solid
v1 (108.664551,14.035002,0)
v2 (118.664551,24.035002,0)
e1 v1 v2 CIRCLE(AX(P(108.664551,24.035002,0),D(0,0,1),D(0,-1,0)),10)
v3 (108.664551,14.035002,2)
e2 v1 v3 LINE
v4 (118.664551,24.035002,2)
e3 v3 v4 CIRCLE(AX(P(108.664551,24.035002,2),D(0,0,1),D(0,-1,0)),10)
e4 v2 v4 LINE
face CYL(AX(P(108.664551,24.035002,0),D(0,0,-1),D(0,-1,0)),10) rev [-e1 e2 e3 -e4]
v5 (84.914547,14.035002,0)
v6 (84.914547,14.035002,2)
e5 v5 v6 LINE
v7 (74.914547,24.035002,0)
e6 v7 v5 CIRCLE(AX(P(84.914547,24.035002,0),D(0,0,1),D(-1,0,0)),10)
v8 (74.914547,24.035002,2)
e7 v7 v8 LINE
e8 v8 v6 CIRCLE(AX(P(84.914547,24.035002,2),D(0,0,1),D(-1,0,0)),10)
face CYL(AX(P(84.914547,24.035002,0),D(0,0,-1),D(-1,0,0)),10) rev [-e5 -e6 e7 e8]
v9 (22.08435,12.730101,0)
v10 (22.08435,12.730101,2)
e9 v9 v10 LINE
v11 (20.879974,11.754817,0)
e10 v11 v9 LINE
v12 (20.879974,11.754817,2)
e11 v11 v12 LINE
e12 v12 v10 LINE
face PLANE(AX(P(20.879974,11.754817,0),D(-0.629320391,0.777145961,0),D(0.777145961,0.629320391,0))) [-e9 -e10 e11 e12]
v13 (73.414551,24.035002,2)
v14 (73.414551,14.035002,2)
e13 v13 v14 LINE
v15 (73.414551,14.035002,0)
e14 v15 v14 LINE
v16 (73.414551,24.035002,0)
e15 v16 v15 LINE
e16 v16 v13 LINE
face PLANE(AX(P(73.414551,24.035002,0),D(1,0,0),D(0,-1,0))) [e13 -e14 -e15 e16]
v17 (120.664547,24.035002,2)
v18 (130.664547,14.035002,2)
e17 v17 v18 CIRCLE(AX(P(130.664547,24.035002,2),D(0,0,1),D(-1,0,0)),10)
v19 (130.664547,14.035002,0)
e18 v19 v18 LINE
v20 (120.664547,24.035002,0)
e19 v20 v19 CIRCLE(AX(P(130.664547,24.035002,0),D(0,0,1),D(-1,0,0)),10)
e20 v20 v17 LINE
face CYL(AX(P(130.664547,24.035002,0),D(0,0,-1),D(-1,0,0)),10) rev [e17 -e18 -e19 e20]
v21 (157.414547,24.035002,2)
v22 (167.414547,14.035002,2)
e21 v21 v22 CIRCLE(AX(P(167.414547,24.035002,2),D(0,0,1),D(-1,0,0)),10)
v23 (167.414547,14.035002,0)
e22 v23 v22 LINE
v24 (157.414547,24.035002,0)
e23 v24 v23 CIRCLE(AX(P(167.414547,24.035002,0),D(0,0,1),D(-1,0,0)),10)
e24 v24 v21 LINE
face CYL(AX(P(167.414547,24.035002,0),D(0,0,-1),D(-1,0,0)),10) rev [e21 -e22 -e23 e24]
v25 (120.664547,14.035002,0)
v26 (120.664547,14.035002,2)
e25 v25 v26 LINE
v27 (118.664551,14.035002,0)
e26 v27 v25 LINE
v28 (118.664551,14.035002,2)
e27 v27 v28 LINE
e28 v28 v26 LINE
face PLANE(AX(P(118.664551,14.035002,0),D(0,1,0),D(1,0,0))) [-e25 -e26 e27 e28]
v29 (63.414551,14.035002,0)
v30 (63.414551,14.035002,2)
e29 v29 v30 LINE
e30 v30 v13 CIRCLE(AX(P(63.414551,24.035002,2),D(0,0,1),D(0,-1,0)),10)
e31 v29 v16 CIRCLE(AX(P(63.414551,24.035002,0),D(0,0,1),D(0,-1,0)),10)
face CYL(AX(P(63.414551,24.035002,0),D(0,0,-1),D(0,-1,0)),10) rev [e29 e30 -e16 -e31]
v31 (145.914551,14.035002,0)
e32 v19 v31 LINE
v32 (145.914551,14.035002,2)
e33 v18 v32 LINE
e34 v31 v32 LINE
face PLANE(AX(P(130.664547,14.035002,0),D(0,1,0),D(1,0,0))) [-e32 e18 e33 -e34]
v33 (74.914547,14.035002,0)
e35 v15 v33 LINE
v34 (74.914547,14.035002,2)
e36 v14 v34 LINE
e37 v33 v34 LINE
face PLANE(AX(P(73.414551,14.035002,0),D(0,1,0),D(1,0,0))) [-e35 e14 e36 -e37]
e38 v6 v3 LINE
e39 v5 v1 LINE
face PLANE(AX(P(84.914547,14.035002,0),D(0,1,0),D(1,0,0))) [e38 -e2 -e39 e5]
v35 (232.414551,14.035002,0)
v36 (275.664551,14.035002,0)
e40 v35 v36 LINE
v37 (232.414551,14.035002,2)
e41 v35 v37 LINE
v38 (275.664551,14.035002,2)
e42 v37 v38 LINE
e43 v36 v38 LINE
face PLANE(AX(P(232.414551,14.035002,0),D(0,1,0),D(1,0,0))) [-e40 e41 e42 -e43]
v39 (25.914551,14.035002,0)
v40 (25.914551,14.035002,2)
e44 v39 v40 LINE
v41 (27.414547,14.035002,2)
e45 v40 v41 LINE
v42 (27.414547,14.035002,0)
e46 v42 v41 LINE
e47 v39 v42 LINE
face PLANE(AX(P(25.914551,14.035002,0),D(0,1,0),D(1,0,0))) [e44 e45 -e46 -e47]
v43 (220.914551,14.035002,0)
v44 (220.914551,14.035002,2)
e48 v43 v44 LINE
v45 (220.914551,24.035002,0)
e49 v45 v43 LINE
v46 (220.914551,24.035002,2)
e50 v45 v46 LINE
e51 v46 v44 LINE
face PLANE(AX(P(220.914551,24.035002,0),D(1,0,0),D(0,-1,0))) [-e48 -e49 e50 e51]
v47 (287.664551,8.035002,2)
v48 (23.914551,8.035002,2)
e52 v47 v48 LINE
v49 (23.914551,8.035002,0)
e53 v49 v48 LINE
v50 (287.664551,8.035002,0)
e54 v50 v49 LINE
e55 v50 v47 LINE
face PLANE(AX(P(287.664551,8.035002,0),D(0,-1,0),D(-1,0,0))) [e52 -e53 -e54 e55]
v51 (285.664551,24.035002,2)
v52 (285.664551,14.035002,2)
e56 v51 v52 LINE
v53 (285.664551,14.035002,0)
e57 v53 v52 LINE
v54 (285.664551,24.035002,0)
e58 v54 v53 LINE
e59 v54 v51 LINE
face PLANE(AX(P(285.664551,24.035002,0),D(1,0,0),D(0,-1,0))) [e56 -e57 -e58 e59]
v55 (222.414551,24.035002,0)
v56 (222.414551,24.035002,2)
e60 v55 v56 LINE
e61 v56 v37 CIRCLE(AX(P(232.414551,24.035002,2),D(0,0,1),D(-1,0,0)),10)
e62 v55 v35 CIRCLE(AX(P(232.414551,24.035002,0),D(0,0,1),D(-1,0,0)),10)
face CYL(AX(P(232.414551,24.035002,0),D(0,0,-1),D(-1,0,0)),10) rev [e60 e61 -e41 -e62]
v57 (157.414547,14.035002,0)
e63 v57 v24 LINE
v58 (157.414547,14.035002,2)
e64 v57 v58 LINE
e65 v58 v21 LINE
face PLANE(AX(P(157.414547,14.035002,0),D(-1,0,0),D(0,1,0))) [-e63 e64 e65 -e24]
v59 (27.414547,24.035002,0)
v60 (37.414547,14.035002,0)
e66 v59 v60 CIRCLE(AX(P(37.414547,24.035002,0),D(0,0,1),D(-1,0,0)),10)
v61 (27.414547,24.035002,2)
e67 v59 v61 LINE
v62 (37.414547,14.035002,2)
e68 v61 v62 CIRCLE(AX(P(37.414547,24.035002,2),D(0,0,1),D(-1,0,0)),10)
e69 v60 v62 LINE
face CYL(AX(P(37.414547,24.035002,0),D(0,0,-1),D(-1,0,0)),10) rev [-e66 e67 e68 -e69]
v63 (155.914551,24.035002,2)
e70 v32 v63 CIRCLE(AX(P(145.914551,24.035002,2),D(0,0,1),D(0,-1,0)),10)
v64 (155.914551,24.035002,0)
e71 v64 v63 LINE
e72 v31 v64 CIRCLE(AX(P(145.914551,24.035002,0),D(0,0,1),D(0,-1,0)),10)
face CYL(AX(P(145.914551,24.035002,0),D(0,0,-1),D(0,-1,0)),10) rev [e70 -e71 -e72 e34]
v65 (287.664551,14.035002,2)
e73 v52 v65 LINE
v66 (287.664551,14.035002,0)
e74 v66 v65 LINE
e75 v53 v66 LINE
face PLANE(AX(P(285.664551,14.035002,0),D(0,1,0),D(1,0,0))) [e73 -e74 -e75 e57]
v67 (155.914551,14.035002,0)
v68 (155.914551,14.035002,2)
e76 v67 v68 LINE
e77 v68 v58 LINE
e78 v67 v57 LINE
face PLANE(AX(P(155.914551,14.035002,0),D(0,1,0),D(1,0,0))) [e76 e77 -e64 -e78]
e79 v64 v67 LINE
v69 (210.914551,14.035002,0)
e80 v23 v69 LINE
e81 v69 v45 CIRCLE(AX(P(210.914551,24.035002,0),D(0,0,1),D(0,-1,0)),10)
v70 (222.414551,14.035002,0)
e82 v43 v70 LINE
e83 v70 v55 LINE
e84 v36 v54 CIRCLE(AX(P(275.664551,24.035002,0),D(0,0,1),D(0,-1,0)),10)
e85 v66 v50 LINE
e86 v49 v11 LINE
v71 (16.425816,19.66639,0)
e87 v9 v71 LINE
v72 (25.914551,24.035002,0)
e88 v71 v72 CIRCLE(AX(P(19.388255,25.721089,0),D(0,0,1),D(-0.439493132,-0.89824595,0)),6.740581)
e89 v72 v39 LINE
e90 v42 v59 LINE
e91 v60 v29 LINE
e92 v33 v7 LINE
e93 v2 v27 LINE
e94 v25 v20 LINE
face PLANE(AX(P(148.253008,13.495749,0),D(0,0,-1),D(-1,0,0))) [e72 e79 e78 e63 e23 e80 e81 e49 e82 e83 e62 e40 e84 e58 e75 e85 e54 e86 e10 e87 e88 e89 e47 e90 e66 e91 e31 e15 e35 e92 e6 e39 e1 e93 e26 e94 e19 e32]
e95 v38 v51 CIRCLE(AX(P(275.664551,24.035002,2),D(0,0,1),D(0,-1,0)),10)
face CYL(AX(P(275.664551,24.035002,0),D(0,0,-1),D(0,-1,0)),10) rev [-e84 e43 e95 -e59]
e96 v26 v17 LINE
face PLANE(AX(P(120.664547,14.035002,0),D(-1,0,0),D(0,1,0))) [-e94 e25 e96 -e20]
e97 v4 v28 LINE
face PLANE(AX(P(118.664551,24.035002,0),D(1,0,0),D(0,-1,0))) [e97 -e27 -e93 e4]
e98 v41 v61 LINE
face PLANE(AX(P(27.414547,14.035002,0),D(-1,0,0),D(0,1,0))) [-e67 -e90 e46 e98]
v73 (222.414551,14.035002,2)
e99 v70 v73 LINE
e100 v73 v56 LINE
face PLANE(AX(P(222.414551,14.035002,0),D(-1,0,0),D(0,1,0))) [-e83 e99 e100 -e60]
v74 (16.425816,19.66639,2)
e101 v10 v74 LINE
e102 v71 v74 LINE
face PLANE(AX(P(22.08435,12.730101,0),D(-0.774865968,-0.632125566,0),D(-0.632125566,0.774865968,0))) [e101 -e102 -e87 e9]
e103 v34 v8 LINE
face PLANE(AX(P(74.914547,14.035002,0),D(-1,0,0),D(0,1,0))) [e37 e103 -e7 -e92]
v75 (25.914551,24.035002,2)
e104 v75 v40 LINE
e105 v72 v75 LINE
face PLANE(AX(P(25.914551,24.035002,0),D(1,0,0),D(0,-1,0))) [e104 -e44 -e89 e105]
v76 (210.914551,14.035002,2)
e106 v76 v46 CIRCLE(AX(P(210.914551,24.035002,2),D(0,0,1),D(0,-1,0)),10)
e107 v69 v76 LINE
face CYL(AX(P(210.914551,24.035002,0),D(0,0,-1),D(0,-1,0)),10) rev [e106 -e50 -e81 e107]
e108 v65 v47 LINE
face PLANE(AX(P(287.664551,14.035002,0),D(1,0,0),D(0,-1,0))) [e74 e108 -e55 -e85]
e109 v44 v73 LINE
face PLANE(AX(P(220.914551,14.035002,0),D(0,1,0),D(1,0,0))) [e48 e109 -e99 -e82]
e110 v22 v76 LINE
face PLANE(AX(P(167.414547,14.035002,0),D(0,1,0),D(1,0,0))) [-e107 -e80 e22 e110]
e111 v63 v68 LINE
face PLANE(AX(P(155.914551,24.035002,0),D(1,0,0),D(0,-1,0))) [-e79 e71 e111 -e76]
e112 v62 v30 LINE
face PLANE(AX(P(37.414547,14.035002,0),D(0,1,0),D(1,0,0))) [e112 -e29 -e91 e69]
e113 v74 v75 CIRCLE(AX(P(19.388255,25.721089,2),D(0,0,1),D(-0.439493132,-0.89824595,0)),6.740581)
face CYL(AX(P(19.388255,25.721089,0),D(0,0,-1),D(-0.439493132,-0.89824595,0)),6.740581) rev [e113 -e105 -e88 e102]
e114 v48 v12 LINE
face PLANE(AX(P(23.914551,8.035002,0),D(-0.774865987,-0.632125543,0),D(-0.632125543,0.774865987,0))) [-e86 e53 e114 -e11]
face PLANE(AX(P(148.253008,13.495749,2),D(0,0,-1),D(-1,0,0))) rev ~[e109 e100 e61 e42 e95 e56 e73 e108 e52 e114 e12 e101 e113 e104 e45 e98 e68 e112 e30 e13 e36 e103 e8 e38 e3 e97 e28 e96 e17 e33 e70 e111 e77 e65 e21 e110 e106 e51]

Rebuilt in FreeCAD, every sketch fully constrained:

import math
import FreeCAD as App
import Part
import Sketcher

V = App.Vector
Q = App.Units.Quantity

doc = App.newDocument("Part")
params = doc.addObject("Spreadsheet::Sheet", "Params")
for row, (alias, value) in enumerate([
    ("sketch1_radius", "10 mm"),
    ("sketch1_width", "2 mm"),
    ("sketch1_height", "6 mm"),
    ("sketch1_width2", "1.5 mm"),
    ("sketch1_width3", "263.75 mm"),
    ("pad1_length", "2 mm"),
], start=1):
    params.set(f"A{row}", alias)
    params.set(f"B{row}", "=" + value)
    params.setAlias(f"B{row}", alias)

body = doc.addObject("PartDesign::Body", "Body")

# Sketch on XY plane
sketch1 = body.newObject("Sketcher::SketchObject", "Sketch")
sketch1.AttachmentSupport = (doc.getObject("XY_Plane"), [""])
sketch1.MapMode = "FlatFace"
sketch1.addGeometry(Part.LineSegment(V(23.9, 8, 0), V(287.7, 8, 0)), False)
sketch1.addGeometry(Part.LineSegment(V(287.7, 8, 0), V(287.7, 14, 0)), False)
sketch1.addGeometry(Part.LineSegment(V(287.7, 14, 0), V(285.7, 14, 0)), False)
sketch1.addGeometry(Part.LineSegment(V(285.7, 14, 0), V(285.7, 24, 0)), False)
sketch1.addGeometry(Part.ArcOfCircle(Part.Circle(V(275.7, 24, 0), V(0, 0, 1), 10), math.radians(-90), math.radians(0)), False)
sketch1.addGeometry(Part.LineSegment(V(275.7, 14, 0), V(232.4, 14, 0)), False)
sketch1.addGeometry(Part.ArcOfCircle(Part.Circle(V(232.4, 24, 0), V(0, 0, 1), 10), math.radians(180), math.radians(270)), False)
sketch1.addGeometry(Part.LineSegment(V(222.4, 24, 0), V(222.4, 14, 0)), False)
sketch1.addGeometry(Part.LineSegment(V(222.4, 14, 0), V(220.9, 14, 0)), False)
sketch1.addGeometry(Part.LineSegment(V(220.9, 14, 0), V(220.9, 24, 0)), False)
sketch1.addGeometry(Part.ArcOfCircle(Part.Circle(V(210.9, 24, 0), V(0, 0, 1), 10), math.radians(-90), math.radians(0)), False)
sketch1.addGeometry(Part.LineSegment(V(210.9, 14, 0), V(167.4, 14, 0)), False)
sketch1.addGeometry(Part.ArcOfCircle(Part.Circle(V(167.4, 24, 0), V(0, 0, 1), 10), math.radians(-180), math.radians(-90)), False)
sketch1.addGeometry(Part.LineSegment(V(157.4, 24, 0), V(157.4, 14, 0)), False)
sketch1.addGeometry(Part.LineSegment(V(157.4, 14, 0), V(155.9, 14, 0)), False)
sketch1.addGeometry(Part.LineSegment(V(155.9, 14, 0), V(155.9, 24, 0)), False)
sketch1.addGeometry(Part.ArcOfCircle(Part.Circle(V(145.9, 24, 0), V(0, 0, 1), 10), math.radians(-90), math.radians(0)), False)
sketch1.addGeometry(Part.LineSegment(V(145.9, 14, 0), V(130.7, 14, 0)), False)
sketch1.addGeometry(Part.ArcOfCircle(Part.Circle(V(130.7, 24, 0), V(0, 0, 1), 10), math.radians(-180), math.radians(-90)), False)
sketch1.addGeometry(Part.LineSegment(V(120.7, 24, 0), V(120.7, 14, 0)), False)
sketch1.addGeometry(Part.LineSegment(V(120.7, 14, 0), V(118.7, 14, 0)), False)
sketch1.addGeometry(Part.LineSegment(V(118.7, 14, 0), V(118.7, 24, 0)), False)
sketch1.addGeometry(Part.ArcOfCircle(Part.Circle(V(108.7, 24, 0), V(0, 0, 1), 10), math.radians(-90), math.radians(0)), False)
sketch1.addGeometry(Part.LineSegment(V(108.7, 14, 0), V(84.9, 14, 0)), False)
sketch1.addGeometry(Part.ArcOfCircle(Part.Circle(V(84.9, 24, 0), V(0, 0, 1), 10), math.radians(-180), math.radians(-90)), False)
sketch1.addGeometry(Part.LineSegment(V(74.9, 24, 0), V(74.9, 14, 0)), False)
sketch1.addGeometry(Part.LineSegment(V(74.9, 14, 0), V(73.4, 14, 0)), False)
sketch1.addGeometry(Part.LineSegment(V(73.4, 14, 0), V(73.4, 24, 0)), False)
sketch1.addGeometry(Part.ArcOfCircle(Part.Circle(V(63.4, 24, 0), V(0, 0, 1), 10), math.radians(-90), math.radians(0)), False)
sketch1.addGeometry(Part.LineSegment(V(63.4, 14, 0), V(37.4, 14, 0)), False)
sketch1.addGeometry(Part.ArcOfCircle(Part.Circle(V(37.4, 24, 0), V(0, 0, 1), 10), math.radians(-180), math.radians(-90)), False)
sketch1.addGeometry(Part.LineSegment(V(27.4, 24, 0), V(27.4, 14, 0)), False)
sketch1.addGeometry(Part.LineSegment(V(27.4, 14, 0), V(25.9, 14, 0)), False)
sketch1.addGeometry(Part.LineSegment(V(25.9, 14, 0), V(25.9, 24, 0)), False)
sketch1.addGeometry(Part.ArcOfCircle(Part.Circle(V(19.4, 25.7, 0), V(0, 0, 1), 6.7), math.radians(-116), math.radians(-14)), False)
sketch1.addGeometry(Part.LineSegment(V(16.4, 19.7, 0), V(22.1, 12.7, 0)), False)
sketch1.addGeometry(Part.LineSegment(V(22.1, 12.7, 0), V(20.9, 11.8, 0)), False)
sketch1.addGeometry(Part.LineSegment(V(20.9, 11.8, 0), V(23.9, 8, 0)), False)
sketch1.addConstraint(Sketcher.Constraint("Coincident", 0, 2, 1, 1))
sketch1.addConstraint(Sketcher.Constraint("Coincident", 1, 2, 2, 1))
sketch1.addConstraint(Sketcher.Constraint("Coincident", 2, 2, 3, 1))
sketch1.addConstraint(Sketcher.Constraint("Tangent", 3, 2, 4, 2))
sketch1.addConstraint(Sketcher.Constraint("Tangent", 4, 1, 5, 1))
sketch1.addConstraint(Sketcher.Constraint("Tangent", 5, 2, 6, 2))
sketch1.addConstraint(Sketcher.Constraint("Tangent", 6, 1, 7, 1))
sketch1.addConstraint(Sketcher.Constraint("Coincident", 7, 2, 8, 1))
sketch1.addConstraint(Sketcher.Constraint("Coincident", 8, 2, 9, 1))
sketch1.addConstraint(Sketcher.Constraint("Tangent", 9, 2, 10, 2))
sketch1.addConstraint(Sketcher.Constraint("Tangent", 10, 1, 11, 1))
sketch1.addConstraint(Sketcher.Constraint("Tangent", 11, 2, 12, 2))
sketch1.addConstraint(Sketcher.Constraint("Tangent", 12, 1, 13, 1))
sketch1.addConstraint(Sketcher.Constraint("Coincident", 13, 2, 14, 1))
sketch1.addConstraint(Sketcher.Constraint("Coincident", 14, 2, 15, 1))
sketch1.addConstraint(Sketcher.Constraint("Tangent", 15, 2, 16, 2))
sketch1.addConstraint(Sketcher.Constraint("Tangent", 16, 1, 17, 1))
sketch1.addConstraint(Sketcher.Constraint("Tangent", 17, 2, 18, 2))
sketch1.addConstraint(Sketcher.Constraint("Tangent", 18, 1, 19, 1))
sketch1.addConstraint(Sketcher.Constraint("Coincident", 19, 2, 20, 1))
sketch1.addConstraint(Sketcher.Constraint("Coincident", 20, 2, 21, 1))
sketch1.addConstraint(Sketcher.Constraint("Tangent", 21, 2, 22, 2))
sketch1.addConstraint(Sketcher.Constraint("Tangent", 22, 1, 23, 1))
sketch1.addConstraint(Sketcher.Constraint("Tangent", 23, 2, 24, 2))
sketch1.addConstraint(Sketcher.Constraint("Tangent", 24, 1, 25, 1))
sketch1.addConstraint(Sketcher.Constraint("Coincident", 25, 2, 26, 1))
sketch1.addConstraint(Sketcher.Constraint("Coincident", 26, 2, 27, 1))
sketch1.addConstraint(Sketcher.Constraint("Tangent", 27, 2, 28, 2))
sketch1.addConstraint(Sketcher.Constraint("Tangent", 28, 1, 29, 1))
sketch1.addConstraint(Sketcher.Constraint("Tangent", 29, 2, 30, 2))
sketch1.addConstraint(Sketcher.Constraint("Tangent", 30, 1, 31, 1))
sketch1.addConstraint(Sketcher.Constraint("Coincident", 31, 2, 32, 1))
sketch1.addConstraint(Sketcher.Constraint("Coincident", 32, 2, 33, 1))
sketch1.addConstraint(Sketcher.Constraint("Coincident", 33, 2, 34, 2))
sketch1.addConstraint(Sketcher.Constraint("Coincident", 34, 1, 35, 1))
sketch1.addConstraint(Sketcher.Constraint("Coincident", 35, 2, 36, 1))
sketch1.addConstraint(Sketcher.Constraint("Coincident", 36, 2, 37, 1))
sketch1.addConstraint(Sketcher.Constraint("Coincident", 37, 2, 0, 1))
sketch1.addConstraint(Sketcher.Constraint("Horizontal", 0))
sketch1.addConstraint(Sketcher.Constraint("Vertical", 1))
sketch1.addConstraint(Sketcher.Constraint("Horizontal", 2))
sketch1.addConstraint(Sketcher.Constraint("Vertical", 3))
sketch1.addConstraint(Sketcher.Constraint("Horizontal", 5))
sketch1.addConstraint(Sketcher.Constraint("Vertical", 7))
sketch1.addConstraint(Sketcher.Constraint("Horizontal", 8))
sketch1.addConstraint(Sketcher.Constraint("Vertical", 9))
sketch1.addConstraint(Sketcher.Constraint("Horizontal", 11))
sketch1.addConstraint(Sketcher.Constraint("Vertical", 13))
sketch1.addConstraint(Sketcher.Constraint("Horizontal", 14))
sketch1.addConstraint(Sketcher.Constraint("Vertical", 15))
sketch1.addConstraint(Sketcher.Constraint("Horizontal", 17))
sketch1.addConstraint(Sketcher.Constraint("Vertical", 19))
sketch1.addConstraint(Sketcher.Constraint("Horizontal", 20))
sketch1.addConstraint(Sketcher.Constraint("Vertical", 21))
sketch1.addConstraint(Sketcher.Constraint("Horizontal", 23))
sketch1.addConstraint(Sketcher.Constraint("Vertical", 25))
sketch1.addConstraint(Sketcher.Constraint("Horizontal", 26))
sketch1.addConstraint(Sketcher.Constraint("Vertical", 27))
sketch1.addConstraint(Sketcher.Constraint("Horizontal", 29))
sketch1.addConstraint(Sketcher.Constraint("Vertical", 31))
sketch1.addConstraint(Sketcher.Constraint("Horizontal", 32))
sketch1.addConstraint(Sketcher.Constraint("Vertical", 33))
sketch1.addConstraint(Sketcher.Constraint("Equal", 4, 6))
sketch1.addConstraint(Sketcher.Constraint("Equal", 6, 10))
sketch1.addConstraint(Sketcher.Constraint("Equal", 10, 12))
sketch1.addConstraint(Sketcher.Constraint("Equal", 12, 16))
sketch1.addConstraint(Sketcher.Constraint("Equal", 16, 18))
sketch1.addConstraint(Sketcher.Constraint("Equal", 18, 22))
sketch1.addConstraint(Sketcher.Constraint("Equal", 22, 24))
sketch1.addConstraint(Sketcher.Constraint("Equal", 24, 28))
sketch1.addConstraint(Sketcher.Constraint("Equal", 28, 30))
sketch1.addConstraint(Sketcher.Constraint("Parallel", 35, 37))
sketch1.addConstraint(Sketcher.Constraint("Horizontal", 6, 3, 10, 3))
sketch1.addConstraint(Sketcher.Constraint("Horizontal", 12, 3, 16, 3))
sketch1.addConstraint(Sketcher.Constraint("Horizontal", 18, 3, 22, 3))
sketch1.addConstraint(Sketcher.Constraint("Horizontal", 24, 3, 28, 3))
sketch1.addConstraint(Sketcher.Constraint("Horizontal", 2, 2, 4, 1))
sketch1.addConstraint(Sketcher.Constraint("Horizontal", 5, 2, 7, 2))
sketch1.addConstraint(Sketcher.Constraint("Horizontal", 11, 2, 13, 2))
sketch1.addConstraint(Sketcher.Constraint("Horizontal", 17, 2, 19, 2))
sketch1.addConstraint(Sketcher.Constraint("Horizontal", 23, 2, 25, 2))
sketch1.addConstraint(Sketcher.Constraint("Horizontal", 29, 2, 31, 2))
sketch1.addConstraint(Sketcher.Constraint("Horizontal", 30, 1, 33, 2))
sketch1.addConstraint(Sketcher.Constraint("Equal", 14, 26))
sketch1.addConstraint(Sketcher.Constraint("Equal", 26, 32))
sketch1.addConstraint(Sketcher.Constraint("Radius", 4, Q("10 mm")))
sketch1.addConstraint(Sketcher.Constraint("DistanceX", 2, 2, 2, 1, Q("2 mm")))
sketch1.addConstraint(Sketcher.Constraint("DistanceY", 1, 1, 1, 2, Q("6 mm")))
sketch1.addConstraint(Sketcher.Constraint("Angle", 36, Q("-141 deg")))
sketch1.addConstraint(Sketcher.Constraint("DistanceX", 8, 2, 8, 1, Q("1.5 mm")))
sketch1.addConstraint(Sketcher.Constraint("DistanceX", 16, 3, 10, 3, Q("65 mm")))
sketch1.addConstraint(Sketcher.Constraint("DistanceX", 37, 2, 32, 2, Q("2 mm")))
sketch1.addConstraint(Sketcher.Constraint("DistanceX", 0, 1, 0, 2, Q("263.75 mm")))
sketch1.addConstraint(Sketcher.Constraint("DistanceX", 5, 2, 5, 1, Q("43.25 mm")))
sketch1.addConstraint(Sketcher.Constraint("DistanceX", 24, 3, 12, 3, Q("82.5 mm")))
sketch1.addConstraint(Sketcher.Constraint("Radius", 34, Q("6.740581 mm")))
sketch1.addConstraint(Sketcher.Constraint("DistanceX", 18, 3, 12, 3, Q("36.75 mm")))
sketch1.addConstraint(Sketcher.Constraint("DistanceX", 22, 3, 16, 3, Q("37.25 mm")))
sketch1.addConstraint(Sketcher.Constraint("DistanceY", -1, 1, 4, 3, Q("24.035002 mm")))
sketch1.addConstraint(Sketcher.Constraint("Distance", 35, Q("8.951598 mm")))
sketch1.addConstraint(Sketcher.Constraint("DistanceY", -1, 1, 35, 2, Q("12.730101 mm")))
sketch1.addConstraint(Sketcher.Constraint("DistanceY", 34, 1, 34, 3, Q("6.054699 mm")))
sketch1.addConstraint(Sketcher.Constraint("DistanceX", 35, 2, 32, 2, Q("3.830201 mm")))
sketch1.addConstraint(Sketcher.Constraint("DistanceX", 11, 2, 11, 1, Q("43.500004 mm")))
sketch1.addConstraint(Sketcher.Constraint("DistanceX", -1, 1, 4, 3, Q("275.664551 mm")))
sketch1.setExpression("Constraints[85]", "Params.sketch1_radius")
sketch1.setExpression("Constraints[86]", "Params.sketch1_width")
sketch1.setExpression("Constraints[87]", "Params.sketch1_height")
sketch1.setExpression("Constraints[89]", "Params.sketch1_width2")
sketch1.setExpression("Constraints[92]", "Params.sketch1_width3")
pad1 = body.newObject("PartDesign::Pad", "Pad")
pad1.Profile = sketch1
pad1.setExpression("Length", "Params.pad1_length")

doc.recompute()
